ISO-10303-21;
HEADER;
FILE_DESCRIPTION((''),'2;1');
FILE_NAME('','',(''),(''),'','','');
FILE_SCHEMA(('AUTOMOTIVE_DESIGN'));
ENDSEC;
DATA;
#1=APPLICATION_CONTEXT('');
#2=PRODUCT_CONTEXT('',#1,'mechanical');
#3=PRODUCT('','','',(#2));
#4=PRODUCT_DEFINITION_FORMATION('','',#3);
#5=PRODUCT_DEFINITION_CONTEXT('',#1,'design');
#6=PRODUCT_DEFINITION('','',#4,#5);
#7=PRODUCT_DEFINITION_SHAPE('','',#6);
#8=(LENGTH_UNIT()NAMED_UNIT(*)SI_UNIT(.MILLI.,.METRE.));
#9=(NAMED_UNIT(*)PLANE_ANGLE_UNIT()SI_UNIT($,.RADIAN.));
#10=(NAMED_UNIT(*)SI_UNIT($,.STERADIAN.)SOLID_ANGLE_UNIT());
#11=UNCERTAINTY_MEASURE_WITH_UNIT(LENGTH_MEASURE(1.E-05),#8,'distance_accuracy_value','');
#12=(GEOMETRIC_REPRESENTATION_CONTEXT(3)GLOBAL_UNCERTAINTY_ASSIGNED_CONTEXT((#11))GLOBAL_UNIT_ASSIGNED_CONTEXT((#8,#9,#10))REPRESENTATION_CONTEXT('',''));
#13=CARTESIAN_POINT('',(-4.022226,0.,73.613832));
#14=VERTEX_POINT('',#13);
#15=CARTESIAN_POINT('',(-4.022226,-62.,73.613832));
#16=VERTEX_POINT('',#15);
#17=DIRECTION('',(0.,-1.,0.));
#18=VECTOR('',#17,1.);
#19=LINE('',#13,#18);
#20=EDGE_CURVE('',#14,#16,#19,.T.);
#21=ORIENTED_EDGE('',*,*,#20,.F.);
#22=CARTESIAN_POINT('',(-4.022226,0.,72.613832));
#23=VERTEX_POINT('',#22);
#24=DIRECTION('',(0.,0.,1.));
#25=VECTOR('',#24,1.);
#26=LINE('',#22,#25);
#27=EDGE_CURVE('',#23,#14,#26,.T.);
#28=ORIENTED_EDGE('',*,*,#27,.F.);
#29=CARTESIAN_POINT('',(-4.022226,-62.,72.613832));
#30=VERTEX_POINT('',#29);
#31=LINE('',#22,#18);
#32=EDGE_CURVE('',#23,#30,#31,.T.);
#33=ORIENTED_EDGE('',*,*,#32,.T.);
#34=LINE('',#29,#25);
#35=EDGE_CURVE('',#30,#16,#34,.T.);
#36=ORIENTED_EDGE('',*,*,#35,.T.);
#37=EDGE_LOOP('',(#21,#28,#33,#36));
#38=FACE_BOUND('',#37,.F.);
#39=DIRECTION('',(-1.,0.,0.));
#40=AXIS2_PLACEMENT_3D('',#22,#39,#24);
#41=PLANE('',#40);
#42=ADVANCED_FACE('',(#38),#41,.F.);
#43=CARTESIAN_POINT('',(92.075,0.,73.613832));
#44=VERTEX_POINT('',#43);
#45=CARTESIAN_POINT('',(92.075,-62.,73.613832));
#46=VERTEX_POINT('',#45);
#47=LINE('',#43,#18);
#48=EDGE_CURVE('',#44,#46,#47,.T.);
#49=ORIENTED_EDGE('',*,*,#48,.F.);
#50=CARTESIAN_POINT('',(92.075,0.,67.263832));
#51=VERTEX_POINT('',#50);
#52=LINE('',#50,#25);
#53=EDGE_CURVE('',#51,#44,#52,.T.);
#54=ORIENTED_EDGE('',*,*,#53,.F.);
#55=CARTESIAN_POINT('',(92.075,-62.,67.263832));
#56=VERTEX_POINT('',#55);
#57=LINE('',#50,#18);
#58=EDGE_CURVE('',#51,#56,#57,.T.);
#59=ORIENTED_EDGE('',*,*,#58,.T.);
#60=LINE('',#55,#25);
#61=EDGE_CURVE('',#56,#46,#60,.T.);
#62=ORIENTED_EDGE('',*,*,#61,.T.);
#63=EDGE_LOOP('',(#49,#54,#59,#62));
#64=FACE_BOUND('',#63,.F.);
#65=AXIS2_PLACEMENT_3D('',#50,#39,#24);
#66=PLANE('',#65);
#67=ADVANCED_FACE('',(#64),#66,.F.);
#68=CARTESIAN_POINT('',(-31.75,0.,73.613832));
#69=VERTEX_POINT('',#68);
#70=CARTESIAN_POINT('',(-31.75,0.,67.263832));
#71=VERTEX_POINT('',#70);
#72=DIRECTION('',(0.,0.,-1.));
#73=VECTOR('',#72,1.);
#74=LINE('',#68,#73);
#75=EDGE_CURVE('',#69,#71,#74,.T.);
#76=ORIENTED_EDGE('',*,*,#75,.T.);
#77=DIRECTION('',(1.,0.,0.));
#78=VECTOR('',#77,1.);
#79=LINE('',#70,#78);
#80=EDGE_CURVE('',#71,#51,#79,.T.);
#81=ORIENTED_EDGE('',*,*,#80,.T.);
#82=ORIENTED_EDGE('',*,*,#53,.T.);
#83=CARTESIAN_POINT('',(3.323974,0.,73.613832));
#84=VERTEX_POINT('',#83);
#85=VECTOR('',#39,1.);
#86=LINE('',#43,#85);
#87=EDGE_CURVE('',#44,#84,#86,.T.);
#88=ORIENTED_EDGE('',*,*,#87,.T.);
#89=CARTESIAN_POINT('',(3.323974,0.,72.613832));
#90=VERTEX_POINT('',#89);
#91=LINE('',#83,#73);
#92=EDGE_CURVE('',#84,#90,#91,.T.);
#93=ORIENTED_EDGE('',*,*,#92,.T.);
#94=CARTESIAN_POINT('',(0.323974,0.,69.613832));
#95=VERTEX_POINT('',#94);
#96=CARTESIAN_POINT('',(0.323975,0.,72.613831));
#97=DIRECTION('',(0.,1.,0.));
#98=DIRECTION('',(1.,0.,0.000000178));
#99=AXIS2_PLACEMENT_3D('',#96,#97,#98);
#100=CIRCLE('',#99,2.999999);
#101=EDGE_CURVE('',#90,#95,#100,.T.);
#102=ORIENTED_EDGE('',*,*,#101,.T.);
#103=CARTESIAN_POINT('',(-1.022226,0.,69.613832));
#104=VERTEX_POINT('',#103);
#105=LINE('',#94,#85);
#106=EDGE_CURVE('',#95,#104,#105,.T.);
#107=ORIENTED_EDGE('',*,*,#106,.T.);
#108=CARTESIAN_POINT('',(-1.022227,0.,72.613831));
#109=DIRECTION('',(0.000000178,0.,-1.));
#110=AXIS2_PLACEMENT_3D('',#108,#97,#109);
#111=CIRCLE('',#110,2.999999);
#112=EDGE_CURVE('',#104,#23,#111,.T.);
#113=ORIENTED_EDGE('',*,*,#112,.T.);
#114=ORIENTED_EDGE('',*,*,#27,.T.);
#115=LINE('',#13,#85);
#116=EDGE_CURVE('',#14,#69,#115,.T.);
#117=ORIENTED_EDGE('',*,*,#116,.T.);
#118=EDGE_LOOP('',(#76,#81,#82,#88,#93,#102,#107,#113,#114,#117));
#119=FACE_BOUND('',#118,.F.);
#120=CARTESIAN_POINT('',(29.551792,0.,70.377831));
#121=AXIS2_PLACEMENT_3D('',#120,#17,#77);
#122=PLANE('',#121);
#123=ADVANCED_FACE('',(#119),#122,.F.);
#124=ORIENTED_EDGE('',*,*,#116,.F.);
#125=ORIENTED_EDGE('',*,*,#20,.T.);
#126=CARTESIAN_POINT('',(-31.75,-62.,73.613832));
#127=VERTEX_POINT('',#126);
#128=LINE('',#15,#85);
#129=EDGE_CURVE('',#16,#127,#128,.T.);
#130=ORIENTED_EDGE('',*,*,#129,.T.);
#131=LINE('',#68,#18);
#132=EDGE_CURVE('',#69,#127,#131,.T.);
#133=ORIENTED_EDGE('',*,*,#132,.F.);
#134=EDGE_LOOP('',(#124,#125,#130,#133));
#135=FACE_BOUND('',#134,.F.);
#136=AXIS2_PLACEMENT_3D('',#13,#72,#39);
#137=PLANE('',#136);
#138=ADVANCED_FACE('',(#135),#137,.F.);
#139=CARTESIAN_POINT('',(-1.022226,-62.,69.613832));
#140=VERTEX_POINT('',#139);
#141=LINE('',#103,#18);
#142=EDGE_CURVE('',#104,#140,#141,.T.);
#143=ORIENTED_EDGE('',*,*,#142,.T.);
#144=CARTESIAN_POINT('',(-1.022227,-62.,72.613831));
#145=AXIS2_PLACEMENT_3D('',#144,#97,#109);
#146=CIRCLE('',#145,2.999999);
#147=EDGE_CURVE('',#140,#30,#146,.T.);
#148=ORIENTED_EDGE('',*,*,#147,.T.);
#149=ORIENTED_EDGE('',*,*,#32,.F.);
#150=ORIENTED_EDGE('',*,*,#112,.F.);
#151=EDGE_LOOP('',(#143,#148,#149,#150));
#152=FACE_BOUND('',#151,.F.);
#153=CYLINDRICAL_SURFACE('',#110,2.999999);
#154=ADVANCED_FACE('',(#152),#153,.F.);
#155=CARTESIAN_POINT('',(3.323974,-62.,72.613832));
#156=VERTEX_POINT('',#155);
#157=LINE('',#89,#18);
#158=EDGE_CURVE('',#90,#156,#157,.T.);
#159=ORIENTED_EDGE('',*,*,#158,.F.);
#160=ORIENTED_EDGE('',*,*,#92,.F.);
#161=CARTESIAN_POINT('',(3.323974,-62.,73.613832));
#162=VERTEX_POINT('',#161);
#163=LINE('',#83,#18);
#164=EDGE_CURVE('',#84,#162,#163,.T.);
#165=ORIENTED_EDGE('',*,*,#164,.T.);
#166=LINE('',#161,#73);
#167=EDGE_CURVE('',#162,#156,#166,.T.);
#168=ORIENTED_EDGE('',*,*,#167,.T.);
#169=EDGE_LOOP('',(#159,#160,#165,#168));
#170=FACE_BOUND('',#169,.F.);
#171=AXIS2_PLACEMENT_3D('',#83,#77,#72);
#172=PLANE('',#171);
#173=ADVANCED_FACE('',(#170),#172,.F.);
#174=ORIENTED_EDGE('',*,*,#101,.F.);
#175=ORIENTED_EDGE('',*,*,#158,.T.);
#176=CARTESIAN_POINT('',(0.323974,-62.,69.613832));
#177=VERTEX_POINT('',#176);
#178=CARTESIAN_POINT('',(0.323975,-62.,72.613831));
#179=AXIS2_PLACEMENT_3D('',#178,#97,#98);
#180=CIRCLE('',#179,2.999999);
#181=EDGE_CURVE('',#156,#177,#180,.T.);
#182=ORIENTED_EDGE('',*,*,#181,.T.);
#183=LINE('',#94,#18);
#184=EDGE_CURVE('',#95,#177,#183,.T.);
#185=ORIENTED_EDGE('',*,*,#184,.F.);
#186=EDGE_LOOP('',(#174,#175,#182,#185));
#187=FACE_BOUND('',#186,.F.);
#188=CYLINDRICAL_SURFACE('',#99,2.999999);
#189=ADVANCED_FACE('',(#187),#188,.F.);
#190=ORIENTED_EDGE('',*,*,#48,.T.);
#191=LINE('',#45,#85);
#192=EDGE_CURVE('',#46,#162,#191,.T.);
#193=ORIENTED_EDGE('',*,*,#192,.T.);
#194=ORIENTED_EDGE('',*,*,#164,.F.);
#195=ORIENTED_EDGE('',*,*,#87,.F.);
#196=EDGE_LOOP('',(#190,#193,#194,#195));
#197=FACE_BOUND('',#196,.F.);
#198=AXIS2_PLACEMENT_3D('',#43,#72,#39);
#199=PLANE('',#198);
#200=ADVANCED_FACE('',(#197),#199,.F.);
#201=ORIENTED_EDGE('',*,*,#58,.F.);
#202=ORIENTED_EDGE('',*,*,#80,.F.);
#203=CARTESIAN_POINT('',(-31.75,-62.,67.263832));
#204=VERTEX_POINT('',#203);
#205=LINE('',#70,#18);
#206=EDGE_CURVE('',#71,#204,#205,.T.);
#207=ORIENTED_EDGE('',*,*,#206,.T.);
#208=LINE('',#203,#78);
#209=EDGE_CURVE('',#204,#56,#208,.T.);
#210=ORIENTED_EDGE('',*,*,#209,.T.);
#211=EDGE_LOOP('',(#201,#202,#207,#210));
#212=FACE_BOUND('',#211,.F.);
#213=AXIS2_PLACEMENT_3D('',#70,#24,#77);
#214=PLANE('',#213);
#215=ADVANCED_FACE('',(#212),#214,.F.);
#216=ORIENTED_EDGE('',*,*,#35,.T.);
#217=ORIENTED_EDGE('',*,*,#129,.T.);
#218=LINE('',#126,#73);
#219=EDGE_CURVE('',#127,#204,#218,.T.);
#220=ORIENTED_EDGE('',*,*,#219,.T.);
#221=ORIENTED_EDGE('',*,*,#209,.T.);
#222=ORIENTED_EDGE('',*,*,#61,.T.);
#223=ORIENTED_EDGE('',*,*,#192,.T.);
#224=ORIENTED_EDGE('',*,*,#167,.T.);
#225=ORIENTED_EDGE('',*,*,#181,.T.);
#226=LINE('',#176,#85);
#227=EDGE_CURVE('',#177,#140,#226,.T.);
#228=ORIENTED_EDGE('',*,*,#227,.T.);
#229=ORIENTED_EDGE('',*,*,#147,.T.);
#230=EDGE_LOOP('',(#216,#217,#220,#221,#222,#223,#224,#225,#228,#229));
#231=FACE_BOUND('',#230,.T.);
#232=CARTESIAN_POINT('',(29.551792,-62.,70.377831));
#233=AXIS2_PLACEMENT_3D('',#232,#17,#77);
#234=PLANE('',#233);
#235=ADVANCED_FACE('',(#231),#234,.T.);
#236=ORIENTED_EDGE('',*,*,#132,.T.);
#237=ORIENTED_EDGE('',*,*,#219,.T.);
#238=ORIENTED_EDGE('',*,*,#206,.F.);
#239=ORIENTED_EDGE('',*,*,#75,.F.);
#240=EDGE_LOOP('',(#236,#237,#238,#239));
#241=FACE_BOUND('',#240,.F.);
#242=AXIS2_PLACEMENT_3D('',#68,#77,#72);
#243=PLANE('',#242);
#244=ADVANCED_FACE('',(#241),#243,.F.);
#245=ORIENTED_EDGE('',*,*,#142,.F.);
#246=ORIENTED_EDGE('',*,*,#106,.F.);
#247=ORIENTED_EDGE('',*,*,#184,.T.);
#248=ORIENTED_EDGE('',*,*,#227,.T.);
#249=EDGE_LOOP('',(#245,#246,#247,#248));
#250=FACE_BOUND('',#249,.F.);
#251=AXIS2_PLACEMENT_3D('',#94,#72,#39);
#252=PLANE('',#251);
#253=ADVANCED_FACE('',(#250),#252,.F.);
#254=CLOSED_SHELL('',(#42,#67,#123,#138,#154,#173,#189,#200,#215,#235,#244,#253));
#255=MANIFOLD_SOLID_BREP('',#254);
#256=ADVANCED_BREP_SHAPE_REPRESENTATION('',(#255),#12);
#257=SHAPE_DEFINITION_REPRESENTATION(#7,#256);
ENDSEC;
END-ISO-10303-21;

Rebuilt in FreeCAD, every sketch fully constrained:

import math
import FreeCAD as App
import Part
import Sketcher
from FreeCAD import Vector
Q = App.Units.Quantity

doc = App.newDocument("Part")
body = doc.addObject("PartDesign::Body", "Body")

# Sketch on XZ plane
sketch1 = body.newObject("Sketcher::SketchObject", "Sketch")
sketch1.AttachmentSupport = (doc.getObject("XZ_Plane"), [""])
sketch1.MapMode = "FlatFace"
sketch1.addGeometry(Part.LineSegment(Vector(-4, 73.6, 0), Vector(-31.8, 73.6, 0)), False)
sketch1.addGeometry(Part.LineSegment(Vector(-31.8, 73.6, 0), Vector(-31.8, 67.3, 0)), False)
sketch1.addGeometry(Part.LineSegment(Vector(-31.8, 67.3, 0), Vector(92.1, 67.3, 0)), False)
sketch1.addGeometry(Part.LineSegment(Vector(92.1, 67.3, 0), Vector(92.1, 73.6, 0)), False)
sketch1.addGeometry(Part.LineSegment(Vector(92.1, 73.6, 0), Vector(3.3, 73.6, 0)), False)
sketch1.addGeometry(Part.LineSegment(Vector(3.3, 73.6, 0), Vector(3.3, 72.6, 0)), False)
sketch1.addGeometry(Part.ArcOfCircle(Part.Circle(Vector(0.3, 72.6, 0), Vector(0, 0, 1), 3), math.radians(-90), math.radians(0)), False)
sketch1.addGeometry(Part.LineSegment(Vector(0.3, 69.6, 0), Vector(-1, 69.6, 0)), False)
sketch1.addGeometry(Part.ArcOfCircle(Part.Circle(Vector(-1, 72.6, 0), Vector(0, 0, 1), 3), math.radians(180), math.radians(270)), False)
sketch1.addGeometry(Part.LineSegment(Vector(-4, 72.6, 0), Vector(-4, 73.6, 0)), False)
sketch1.addConstraint(Sketcher.Constraint("Coincident", 0, 2, 1, 1))
sketch1.addConstraint(Sketcher.Constraint("Coincident", 1, 2, 2, 1))
sketch1.addConstraint(Sketcher.Constraint("Coincident", 2, 2, 3, 1))
sketch1.addConstraint(Sketcher.Constraint("Coincident", 3, 2, 4, 1))
sketch1.addConstraint(Sketcher.Constraint("Coincident", 4, 2, 5, 1))
sketch1.addConstraint(Sketcher.Constraint("Tangent", 5, 2, 6, 2))
sketch1.addConstraint(Sketcher.Constraint("Tangent", 6, 1, 7, 1))
sketch1.addConstraint(Sketcher.Constraint("Tangent", 7, 2, 8, 2))
sketch1.addConstraint(Sketcher.Constraint("Tangent", 8, 1, 9, 1))
sketch1.addConstraint(Sketcher.Constraint("Coincident", 9, 2, 0, 1))
sketch1.addConstraint(Sketcher.Constraint("Horizontal", 0))
sketch1.addConstraint(Sketcher.Constraint("Vertical", 1))
sketch1.addConstraint(Sketcher.Constraint("Horizontal", 2))
sketch1.addConstraint(Sketcher.Constraint("Vertical", 3))
sketch1.addConstraint(Sketcher.Constraint("Horizontal", 4))
sketch1.addConstraint(Sketcher.Constraint("Vertical", 5))
sketch1.addConstraint(Sketcher.Constraint("Horizontal", 7))
sketch1.addConstraint(Sketcher.Constraint("Vertical", 9))
sketch1.addConstraint(Sketcher.Constraint("Equal", 6, 8))
sketch1.addConstraint(Sketcher.Constraint("Horizontal", 0, 2, 3, 2))
sketch1.addConstraint(Sketcher.Constraint("Radius", 6, Q("2.999999 mm")))
sketch1.addConstraint(Sketcher.Constraint("DistanceY", 5, 2, 5, 1, Q("1 mm")))
sketch1.addConstraint(Sketcher.Constraint("DistanceY", 1, 2, 1, 1, Q("6.35 mm")))
sketch1.addConstraint(Sketcher.Constraint("DistanceX", 2, 1, 2, 2, Q("123.825 mm")))
sketch1.addConstraint(Sketcher.Constraint("DistanceX", 0, 2, -1, 1, Q("31.75 mm")))
sketch1.addConstraint(Sketcher.Constraint("DistanceX", 7, 2, 7, 1, Q("1.3462 mm")))
sketch1.addConstraint(Sketcher.Constraint("DistanceX", 0, 2, 0, 1, Q("27.727774 mm")))
sketch1.addConstraint(Sketcher.Constraint("DistanceY", -1, 1, 6, 3, Q("72.613831 mm")))
pad1 = body.newObject("PartDesign::Pad", "Pad")
pad1.Profile = sketch1
pad1.Length = 62

doc.recompute()
